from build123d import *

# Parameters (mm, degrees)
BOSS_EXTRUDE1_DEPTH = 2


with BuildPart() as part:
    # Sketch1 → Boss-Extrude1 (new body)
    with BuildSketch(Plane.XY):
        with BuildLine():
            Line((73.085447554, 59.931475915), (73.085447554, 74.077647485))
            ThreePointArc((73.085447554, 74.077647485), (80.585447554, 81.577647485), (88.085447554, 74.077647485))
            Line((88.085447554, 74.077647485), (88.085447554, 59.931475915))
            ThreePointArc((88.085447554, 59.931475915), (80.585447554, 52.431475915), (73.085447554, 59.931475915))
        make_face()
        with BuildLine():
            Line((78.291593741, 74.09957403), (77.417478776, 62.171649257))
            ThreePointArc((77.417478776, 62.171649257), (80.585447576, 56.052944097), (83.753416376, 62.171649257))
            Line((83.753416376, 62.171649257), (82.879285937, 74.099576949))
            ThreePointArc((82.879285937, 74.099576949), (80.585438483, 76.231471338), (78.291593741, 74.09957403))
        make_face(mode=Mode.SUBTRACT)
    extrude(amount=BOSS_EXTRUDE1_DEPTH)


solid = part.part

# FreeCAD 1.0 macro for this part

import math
import FreeCAD as App
import Part
import Sketcher
from FreeCAD import Vector

doc = App.newDocument("Part")
body = doc.addObject("PartDesign::Body", "Body")

sketch1 = body.newObject("Sketcher::SketchObject", "Sketch")
sketch1.AttachmentSupport = (doc.getObject("XY_Plane"), [""])
sketch1.MapMode = "FlatFace"
sketch1.addGeometry(Part.LineSegment(Vector(73.085448, 74.077647, 0), Vector(73.085448, 59.931476, 0)), False)
sketch1.addGeometry(Part.ArcOfCircle(Part.Circle(Vector(80.585448, 59.931476, 0), Vector(0, 0, 1), 7.5), math.radians(180), math.radians(360)), False)
sketch1.addGeometry(Part.LineSegment(Vector(88.085448, 59.931476, 0), Vector(88.085448, 74.077647, 0)), False)
sketch1.addGeometry(Part.ArcOfCircle(Part.Circle(Vector(80.585448, 74.077647, 0), Vector(0, 0, 1), 7.5), math.radians(0), math.radians(180)), False)
sketch1.addGeometry(Part.ArcOfCircle(Part.Circle(Vector(80.58544, 73.931474, 0), Vector(0, 0, 1), 2.299997), math.radians(4.191391), math.radians(175.808682)), False)
sketch1.addGeometry(Part.LineSegment(Vector(82.879286, 74.099577, 0), Vector(83.753416, 62.171649, 0)), False)
sketch1.addGeometry(Part.ArcOfCircle(Part.Circle(Vector(80.585448, 59.932407, 0), Vector(0, 0, 1), 3.879463), math.radians(144.74586), math.radians(395.25414)), False)
sketch1.addGeometry(Part.LineSegment(Vector(77.417479, 62.171649, 0), Vector(78.291594, 74.099574, 0)), False)
sketch1.addConstraint(Sketcher.Constraint("Tangent", 0, 2, 1, 1))
sketch1.addConstraint(Sketcher.Constraint("Tangent", 1, 2, 2, 1))
sketch1.addConstraint(Sketcher.Constraint("Tangent", 2, 2, 3, 1))
sketch1.addConstraint(Sketcher.Constraint("Tangent", 3, 2, 0, 1))
sketch1.addConstraint(Sketcher.Constraint("Tangent", 4, 1, 5, 1))
sketch1.addConstraint(Sketcher.Constraint("Coincident", 5, 2, 6, 2))
sketch1.addConstraint(Sketcher.Constraint("Coincident", 6, 1, 7, 1))
sketch1.addConstraint(Sketcher.Constraint("Tangent", 7, 2, 4, 2))
sketch1.addConstraint(Sketcher.Constraint("Vertical", 0))
sketch1.addConstraint(Sketcher.Constraint("Vertical", 2))
sketch1.addConstraint(Sketcher.Constraint("Horizontal", 5, 2, 6, 1))
sketch1.addConstraint(Sketcher.Constraint("Vertical", 3, 3, 6, 3))
sketch1.addConstraint(Sketcher.Constraint("Radius", 1, 7.5))
sketch1.addConstraint(Sketcher.Constraint("DistanceY", 1, 3, 4, 3, 13.999998))
sketch1.addConstraint(Sketcher.Constraint("Radius", 4, 2.299997))
sketch1.addConstraint(Sketcher.Constraint("Radius", 6, 3.879463))
sketch1.addConstraint(Sketcher.Constraint("DistanceY", 0, 2, 0, 1, 14.146172))
sketch1.addConstraint(Sketcher.Constraint("DistanceY", 4, 3, 7, 2, 0.1681))
sketch1.addConstraint(Sketcher.Constraint("Distance", 7, 11.959911))
sketch1.addConstraint(Sketcher.Constraint("DistanceX", -1, 1, 4, 3, 80.58544))
sketch1.addConstraint(Sketcher.Constraint("DistanceY", -1, 1, 5, 2, 62.171649))
sketch1.addConstraint(Sketcher.Constraint("DistanceY", 1, 3, 6, 3, 0.000931))
pad1 = body.newObject("PartDesign::Pad", "Pad")
pad1.Profile = sketch1
pad1.Length = 2

doc.recompute()
